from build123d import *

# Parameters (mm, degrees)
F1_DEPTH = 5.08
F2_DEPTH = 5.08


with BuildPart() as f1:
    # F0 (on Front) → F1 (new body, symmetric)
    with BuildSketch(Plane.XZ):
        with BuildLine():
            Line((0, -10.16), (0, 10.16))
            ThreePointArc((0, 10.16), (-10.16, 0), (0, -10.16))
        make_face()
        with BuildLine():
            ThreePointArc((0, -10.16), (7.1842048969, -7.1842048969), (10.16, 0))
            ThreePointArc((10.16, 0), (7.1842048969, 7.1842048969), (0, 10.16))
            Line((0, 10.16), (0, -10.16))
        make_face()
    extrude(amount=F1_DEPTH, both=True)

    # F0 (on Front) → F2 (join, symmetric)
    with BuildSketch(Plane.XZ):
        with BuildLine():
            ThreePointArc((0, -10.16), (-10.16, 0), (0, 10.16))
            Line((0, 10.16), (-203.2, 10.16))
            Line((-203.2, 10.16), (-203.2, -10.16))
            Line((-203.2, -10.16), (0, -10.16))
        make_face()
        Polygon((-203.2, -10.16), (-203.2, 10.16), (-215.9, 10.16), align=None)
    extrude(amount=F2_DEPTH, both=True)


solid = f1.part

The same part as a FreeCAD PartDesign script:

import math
import FreeCAD as App
import Part
import Sketcher
from FreeCAD import Vector
Q = App.Units.Quantity

doc = App.newDocument("Part")
params = doc.addObject("Spreadsheet::Sheet", "Params")
for row, (alias, value) in enumerate([
    ("sketch1_radius", "0.4 in"),
    ("pad1_length", "0.4 in"),
    ("sketch2_radius", "0.4 in"),
    ("sketch2_width", "8 in"),
    ("sketch2_width2", "8.5 in"),
    ("pad2_length", "0.4 in"),
], start=1):
    params.set(f"A{row}", alias)
    params.set(f"B{row}", "=" + value)
    params.setAlias(f"B{row}", alias)

body = doc.addObject("PartDesign::Body", "Body")

# Sketch on XZ plane
sketch1 = body.newObject("Sketcher::SketchObject", "Sketch")
sketch1.AttachmentSupport = (doc.getObject("XZ_Plane"), [""])
sketch1.MapMode = "FlatFace"
sketch1.addGeometry([
    Part.ArcOfCircle(Part.Circle(Vector(0, 0, 0), Vector(0, 0, 1), 10), math.radians(90), math.radians(270)),
    Part.ArcOfCircle(Part.Circle(Vector(0, 0, 0), Vector(0, 0, 1), 10), math.radians(-90), math.radians(0)),
    Part.ArcOfCircle(Part.Circle(Vector(0, 0, 0), Vector(0, 0, 1), 10), math.radians(0), math.radians(90)),
], False)
sketch1.addConstraint([
    Sketcher.Constraint("Tangent", 0, 2, 1, 1),
    Sketcher.Constraint("Tangent", 1, 2, 2, 1),
    Sketcher.Constraint("Tangent", 2, 2, 0, 1),
    Sketcher.Constraint("Coincident", 0, 3, -1, 1),
    Sketcher.Constraint("PointOnObject", 0, 2, -2),
    Sketcher.Constraint("PointOnObject", 1, 2, -1),
    Sketcher.Constraint("PointOnObject", 2, 2, -2),
    Sketcher.Constraint("Radius", 0, Q("0.4 in")),
])
sketch1.setExpression("Constraints[7]", "Params.sketch1_radius")
pad1 = body.newObject("PartDesign::Pad", "Pad")
pad1.Profile = sketch1
pad1.setExpression("Length", "Params.pad1_length")
pad1.Midplane = True

# Sketch on XZ plane
sketch2 = body.newObject("Sketcher::SketchObject", "Sketch001")
sketch2.AttachmentSupport = (doc.getObject("XZ_Plane"), [""])
sketch2.MapMode = "FlatFace"
sketch2.addGeometry([
    Part.ArcOfCircle(Part.Circle(Vector(0, 0, 0), Vector(0, 0, 1), 10), math.radians(90), math.radians(270)),
    Part.LineSegment(Vector(0, 10, 0), Vector(-216, 10, 0)),
    Part.LineSegment(Vector(-216, 10, 0), Vector(-203, -10, 0)),
    Part.LineSegment(Vector(-203, -10, 0), Vector(0, -10, 0)),
], False)
sketch2.addConstraint([
    Sketcher.Constraint("Tangent", 0, 1, 1, 1),
    Sketcher.Constraint("Coincident", 1, 2, 2, 1),
    Sketcher.Constraint("Coincident", 2, 2, 3, 1),
    Sketcher.Constraint("Tangent", 3, 2, 0, 2),
    Sketcher.Constraint("Horizontal", 1),
    Sketcher.Constraint("Horizontal", 3),
    Sketcher.Constraint("Coincident", 0, 3, -1, 1),
    Sketcher.Constraint("Radius", 0, Q("0.4 in")),
    Sketcher.Constraint("DistanceX", 3, 1, 3, 2, Q("8 in")),
    Sketcher.Constraint("DistanceX", 1, 2, 1, 1, Q("8.5 in")),
])
sketch2.setExpression("Constraints[7]", "Params.sketch2_radius")
sketch2.setExpression("Constraints[8]", "Params.sketch2_width")
sketch2.setExpression("Constraints[9]", "Params.sketch2_width2")
pad2 = body.newObject("PartDesign::Pad", "Pad001")
pad2.Profile = sketch2
pad2.setExpression("Length", "Params.pad2_length")
pad2.Midplane = True

doc.recompute()
